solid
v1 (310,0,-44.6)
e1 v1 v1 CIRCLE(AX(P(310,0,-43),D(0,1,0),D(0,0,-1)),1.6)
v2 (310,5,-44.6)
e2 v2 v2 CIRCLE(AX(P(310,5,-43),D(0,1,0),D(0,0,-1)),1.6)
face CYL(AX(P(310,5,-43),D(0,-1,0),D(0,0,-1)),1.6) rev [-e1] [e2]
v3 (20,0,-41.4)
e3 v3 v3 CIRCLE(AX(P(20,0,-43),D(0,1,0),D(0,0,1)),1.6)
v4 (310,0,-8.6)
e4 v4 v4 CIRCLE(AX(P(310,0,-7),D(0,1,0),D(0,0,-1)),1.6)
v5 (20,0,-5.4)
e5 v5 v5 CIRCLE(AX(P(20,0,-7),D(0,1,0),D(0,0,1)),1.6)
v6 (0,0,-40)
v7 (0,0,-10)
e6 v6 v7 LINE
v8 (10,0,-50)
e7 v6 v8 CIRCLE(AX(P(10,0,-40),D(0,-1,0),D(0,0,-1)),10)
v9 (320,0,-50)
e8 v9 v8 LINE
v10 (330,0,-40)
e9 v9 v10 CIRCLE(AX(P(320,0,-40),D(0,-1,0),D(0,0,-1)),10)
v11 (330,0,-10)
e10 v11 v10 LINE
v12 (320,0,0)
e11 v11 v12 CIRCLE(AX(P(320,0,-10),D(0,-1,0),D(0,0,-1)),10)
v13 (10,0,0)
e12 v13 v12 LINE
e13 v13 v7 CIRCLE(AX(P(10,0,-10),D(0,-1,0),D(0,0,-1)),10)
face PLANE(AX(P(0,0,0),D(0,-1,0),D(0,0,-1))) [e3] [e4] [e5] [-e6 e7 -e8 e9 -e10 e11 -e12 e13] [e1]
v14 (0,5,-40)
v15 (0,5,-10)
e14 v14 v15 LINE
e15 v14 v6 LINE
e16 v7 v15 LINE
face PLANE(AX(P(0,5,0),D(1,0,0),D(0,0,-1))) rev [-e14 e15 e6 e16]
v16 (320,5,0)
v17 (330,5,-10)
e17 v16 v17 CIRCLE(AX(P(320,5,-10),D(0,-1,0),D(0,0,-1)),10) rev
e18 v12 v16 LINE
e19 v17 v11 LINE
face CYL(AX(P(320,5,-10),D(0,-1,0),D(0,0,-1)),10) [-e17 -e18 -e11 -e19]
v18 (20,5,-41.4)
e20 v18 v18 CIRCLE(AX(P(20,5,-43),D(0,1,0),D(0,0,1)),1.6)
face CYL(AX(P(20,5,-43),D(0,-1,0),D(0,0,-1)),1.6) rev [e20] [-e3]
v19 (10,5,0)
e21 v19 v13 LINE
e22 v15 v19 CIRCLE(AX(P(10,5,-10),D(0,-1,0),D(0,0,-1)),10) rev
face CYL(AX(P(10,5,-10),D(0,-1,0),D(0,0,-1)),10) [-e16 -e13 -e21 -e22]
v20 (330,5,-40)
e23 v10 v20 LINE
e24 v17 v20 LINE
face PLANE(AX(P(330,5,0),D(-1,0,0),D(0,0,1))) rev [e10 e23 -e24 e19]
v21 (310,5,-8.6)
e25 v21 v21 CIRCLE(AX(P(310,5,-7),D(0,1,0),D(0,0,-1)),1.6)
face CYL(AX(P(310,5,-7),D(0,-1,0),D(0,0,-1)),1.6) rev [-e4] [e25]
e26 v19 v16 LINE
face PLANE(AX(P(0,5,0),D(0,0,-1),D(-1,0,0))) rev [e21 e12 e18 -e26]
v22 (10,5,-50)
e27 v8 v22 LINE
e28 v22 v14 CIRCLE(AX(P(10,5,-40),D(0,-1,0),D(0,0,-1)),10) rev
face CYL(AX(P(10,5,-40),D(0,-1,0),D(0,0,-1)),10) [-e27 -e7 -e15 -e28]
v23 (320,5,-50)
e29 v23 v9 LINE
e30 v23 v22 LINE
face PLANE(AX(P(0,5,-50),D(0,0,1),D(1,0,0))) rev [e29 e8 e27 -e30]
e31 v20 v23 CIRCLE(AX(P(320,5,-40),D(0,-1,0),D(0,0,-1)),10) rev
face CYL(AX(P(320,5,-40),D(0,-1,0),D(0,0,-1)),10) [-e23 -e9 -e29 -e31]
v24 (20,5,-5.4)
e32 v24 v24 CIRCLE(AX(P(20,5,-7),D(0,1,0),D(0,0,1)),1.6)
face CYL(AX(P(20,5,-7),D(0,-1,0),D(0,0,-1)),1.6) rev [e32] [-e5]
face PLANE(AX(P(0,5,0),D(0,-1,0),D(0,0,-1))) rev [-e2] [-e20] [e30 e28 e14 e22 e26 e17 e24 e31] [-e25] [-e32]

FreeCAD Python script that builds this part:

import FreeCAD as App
import Part
import Sketcher

V = App.Vector
Q = App.Units.Quantity


def edges_at(feature, points):
    """Names of the edges that pass closest to the given points."""
    edges = feature.Shape.Edges
    near = lambda p: min(range(len(edges)), key=lambda i: edges[i].distToShape(Part.Vertex(*p))[0])
    return sorted({f"Edge{near(p) + 1}" for p in points})

doc = App.newDocument("Part")
params = doc.addObject("Spreadsheet::Sheet", "Params")
for row, (alias, value) in enumerate([
    ("sketch1_diameter", "3.2 mm"),
    ("sketch1_width", "330 mm"),
    ("sketch1_height", "50 mm"),
    ("pad1_length", "5 mm"),
    ("fillet_radius", "10 mm"),
], start=1):
    params.set(f"A{row}", alias)
    params.set(f"B{row}", "=" + value)
    params.setAlias(f"B{row}", alias)

body = doc.addObject("PartDesign::Body", "Body")

# Sketch on XZ plane
sketch1 = body.newObject("Sketcher::SketchObject", "Sketch")
sketch1.AttachmentSupport = (doc.getObject("XZ_Plane"), [""])
sketch1.MapMode = "FlatFace"
sketch1.addGeometry(Part.LineSegment(V(0, -50, 0), V(0, 0, 0)), False)
sketch1.addGeometry(Part.LineSegment(V(0, 0, 0), V(330, 0, 0)), False)
sketch1.addGeometry(Part.LineSegment(V(330, 0, 0), V(330, -50, 0)), False)
sketch1.addGeometry(Part.LineSegment(V(330, -50, 0), V(0, -50, 0)), False)
sketch1.addGeometry(Part.Circle(V(20, -7, 0), V(0, 0, 1), 1.6), False)
sketch1.addGeometry(Part.Circle(V(310, -7, 0), V(0, 0, 1), 1.6), False)
sketch1.addGeometry(Part.Circle(V(20, -43, 0), V(0, 0, 1), 1.6), False)
sketch1.addGeometry(Part.Circle(V(310, -43, 0), V(0, 0, 1), 1.6), False)
sketch1.addConstraint(Sketcher.Constraint("Coincident", 0, 2, 1, 1))
sketch1.addConstraint(Sketcher.Constraint("Coincident", 1, 2, 2, 1))
sketch1.addConstraint(Sketcher.Constraint("Coincident", 2, 2, 3, 1))
sketch1.addConstraint(Sketcher.Constraint("Coincident", 3, 2, 0, 1))
sketch1.addConstraint(Sketcher.Constraint("Vertical", 0))
sketch1.addConstraint(Sketcher.Constraint("Horizontal", 1))
sketch1.addConstraint(Sketcher.Constraint("Vertical", 2))
sketch1.addConstraint(Sketcher.Constraint("Horizontal", 3))
sketch1.addConstraint(Sketcher.Constraint("Coincident", 0, 2, -1, 1))
sketch1.addConstraint(Sketcher.Constraint("Equal", 4, 5))
sketch1.addConstraint(Sketcher.Constraint("Equal", 5, 6))
sketch1.addConstraint(Sketcher.Constraint("Equal", 6, 7))
sketch1.addConstraint(Sketcher.Constraint("Horizontal", 4, 3, 5, 3))
sketch1.addConstraint(Sketcher.Constraint("Horizontal", 6, 3, 7, 3))
sketch1.addConstraint(Sketcher.Constraint("Vertical", 4, 3, 6, 3))
sketch1.addConstraint(Sketcher.Constraint("Vertical", 5, 3, 7, 3))
sketch1.addConstraint(Sketcher.Constraint("Diameter", 4, Q("3.2 mm")))
sketch1.addConstraint(Sketcher.Constraint("DistanceX", 1, 1, 1, 2, Q("330 mm")))
sketch1.addConstraint(Sketcher.Constraint("DistanceY", 0, 1, 0, 2, Q("50 mm")))
sketch1.addConstraint(Sketcher.Constraint("DistanceX", -1, 1, 4, 3, Q("20 mm")))
sketch1.addConstraint(Sketcher.Constraint("DistanceY", 4, 3, -1, 1, Q("7 mm")))
sketch1.addConstraint(Sketcher.Constraint("DistanceX", -1, 1, 5, 3, Q("310 mm")))
sketch1.addConstraint(Sketcher.Constraint("DistanceY", 6, 3, -1, 1, Q("43 mm")))
sketch1.setExpression("Constraints[16]", "Params.sketch1_diameter")
sketch1.setExpression("Constraints[17]", "Params.sketch1_width")
sketch1.setExpression("Constraints[18]", "Params.sketch1_height")
pad1 = body.newObject("PartDesign::Pad", "Pad")
pad1.Profile = sketch1
pad1.setExpression("Length", "Params.pad1_length")
pad1.Reversed = True
doc.recompute()

fillet = body.newObject("PartDesign::Fillet", "Fillet")
fillet.Base = (pad1, edges_at(pad1, [
    (0, 2.5, -50),
    (330, 2.5, -50),
    (330, 2.5, 0),
    (0, 2.5, 0),
]))
fillet.setExpression("Radius", "Params.fillet_radius")

doc.recompute()
